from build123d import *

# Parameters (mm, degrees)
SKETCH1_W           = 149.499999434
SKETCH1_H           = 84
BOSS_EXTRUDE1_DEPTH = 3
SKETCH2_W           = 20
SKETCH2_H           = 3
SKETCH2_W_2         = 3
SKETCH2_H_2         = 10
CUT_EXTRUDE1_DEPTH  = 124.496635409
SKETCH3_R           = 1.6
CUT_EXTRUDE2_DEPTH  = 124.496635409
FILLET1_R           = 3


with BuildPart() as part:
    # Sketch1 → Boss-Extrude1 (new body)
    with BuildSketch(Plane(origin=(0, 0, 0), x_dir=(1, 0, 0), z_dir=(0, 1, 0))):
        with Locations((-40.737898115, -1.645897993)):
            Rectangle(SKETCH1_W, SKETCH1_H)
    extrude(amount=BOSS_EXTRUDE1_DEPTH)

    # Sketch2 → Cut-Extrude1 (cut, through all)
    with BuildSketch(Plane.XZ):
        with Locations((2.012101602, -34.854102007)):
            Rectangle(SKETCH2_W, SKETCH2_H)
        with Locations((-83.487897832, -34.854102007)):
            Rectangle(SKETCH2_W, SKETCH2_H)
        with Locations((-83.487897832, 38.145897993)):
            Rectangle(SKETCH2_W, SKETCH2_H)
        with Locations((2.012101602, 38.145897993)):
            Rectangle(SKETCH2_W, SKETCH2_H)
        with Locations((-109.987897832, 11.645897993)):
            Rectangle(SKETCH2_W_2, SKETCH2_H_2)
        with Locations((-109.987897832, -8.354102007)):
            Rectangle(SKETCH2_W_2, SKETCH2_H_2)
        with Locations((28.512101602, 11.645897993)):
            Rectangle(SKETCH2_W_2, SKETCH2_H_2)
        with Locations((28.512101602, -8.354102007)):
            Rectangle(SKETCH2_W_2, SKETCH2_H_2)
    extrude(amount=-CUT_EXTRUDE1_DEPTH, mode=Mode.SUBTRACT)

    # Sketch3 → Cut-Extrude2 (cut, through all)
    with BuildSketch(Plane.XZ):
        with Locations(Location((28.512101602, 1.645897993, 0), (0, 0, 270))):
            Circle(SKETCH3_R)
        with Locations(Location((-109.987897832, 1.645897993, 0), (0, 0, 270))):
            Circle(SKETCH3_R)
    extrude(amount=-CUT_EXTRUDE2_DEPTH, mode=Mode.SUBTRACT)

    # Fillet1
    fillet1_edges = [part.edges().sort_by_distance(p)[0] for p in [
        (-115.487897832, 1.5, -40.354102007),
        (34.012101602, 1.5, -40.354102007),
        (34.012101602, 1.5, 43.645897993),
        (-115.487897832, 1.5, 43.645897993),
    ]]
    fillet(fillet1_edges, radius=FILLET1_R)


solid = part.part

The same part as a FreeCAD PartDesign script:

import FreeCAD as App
import Part
import Sketcher
from FreeCAD import Vector


def edges_at(feature, points):
    """Names of the edges that pass closest to the given points."""
    edges = feature.Shape.Edges
    near = lambda p: min(range(len(edges)), key=lambda i: edges[i].distToShape(Part.Vertex(*p))[0])
    return sorted({f"Edge{near(p) + 1}" for p in points})


def add_polygon(sketch, points):
    """Adds a closed chain of lines whose ends are joined by coincident constraints."""
    first, n = sketch.GeometryCount, len(points)
    for a, b in zip(points, points[1:] + points[:1]):
        sketch.addGeometry(Part.LineSegment(App.Vector(*a, 0), App.Vector(*b, 0)), False)
    for i in range(n):
        sketch.addConstraint(Sketcher.Constraint("Coincident", first + i, 2, first + (i + 1) % n, 1))

doc = App.newDocument("Part")
body = doc.addObject("PartDesign::Body", "Body")

sketch1 = doc.addObject("Sketcher::SketchObject", "Sketch")
body.addObject(sketch1)
sketch1.AttachmentSupport = (doc.XZ_Plane, [""])
sketch1.MapMode = "FlatFace"
add_polygon(sketch1, [(-115, -40), (-115, 44), (34, 44), (34, -40)])
sketch1.addConstraint([
    Sketcher.Constraint("Vertical", 0),
    Sketcher.Constraint("Horizontal", 1),
    Sketcher.Constraint("Vertical", 2),
    Sketcher.Constraint("Horizontal", 3),
    Sketcher.Constraint("DistanceY", 0, 1, 0, 2, 84.0),
    Sketcher.Constraint("DistanceX", 1, 1, 1, 2, 149.499999),
    Sketcher.Constraint("DistanceX", -1, 1, 1, 2, 34.012102),
    Sketcher.Constraint("DistanceY", -1, 1, 0, 2, 43.645898),
])
pad1 = doc.addObject("PartDesign::Pad", "Pad")
body.addObject(pad1)
pad1.Profile = sketch1
pad1.Length = 3
pad1.Reversed = True

sketch2 = doc.addObject("Sketcher::SketchObject", "Sketch001")
body.addObject(sketch2)
sketch2.AttachmentSupport = (doc.XZ_Plane, [""])
sketch2.MapMode = "FlatFace"
add_polygon(sketch2, [(-8, -33.4), (-8, -36.4), (12, -36.4), (12, -33.4)])
add_polygon(sketch2, [(-93.5, -33.4), (-93.5, -36.4), (-73.5, -36.4), (-73.5, -33.4)])
add_polygon(sketch2, [(-93.5, 39.6), (-93.5, 36.6), (-73.5, 36.6), (-73.5, 39.6)])
add_polygon(sketch2, [(-8, 39.6), (-8, 36.6), (12, 36.6), (12, 39.6)])
add_polygon(sketch2, [(-111.5, 16.6), (-111.5, 6.6), (-108.5, 6.6), (-108.5, 16.6)])
add_polygon(sketch2, [(-111.5, -3.4), (-111.5, -13.4), (-108.5, -13.4), (-108.5, -3.4)])
add_polygon(sketch2, [(27, 16.6), (27, 6.6), (30, 6.6), (30, 16.6)])
add_polygon(sketch2, [(27, -3.4), (27, -13.4), (30, -13.4), (30, -3.4)])
sketch2.addConstraint([
    Sketcher.Constraint("Vertical", 0),
    Sketcher.Constraint("Horizontal", 1),
    Sketcher.Constraint("Vertical", 2),
    Sketcher.Constraint("Horizontal", 3),
    Sketcher.Constraint("Vertical", 4),
    Sketcher.Constraint("Horizontal", 5),
    Sketcher.Constraint("Vertical", 6),
    Sketcher.Constraint("Horizontal", 7),
    Sketcher.Constraint("Vertical", 8),
    Sketcher.Constraint("Horizontal", 9),
    Sketcher.Constraint("Vertical", 10),
    Sketcher.Constraint("Horizontal", 11),
    Sketcher.Constraint("Vertical", 12),
    Sketcher.Constraint("Horizontal", 13),
    Sketcher.Constraint("Vertical", 14),
    Sketcher.Constraint("Horizontal", 15),
    Sketcher.Constraint("Vertical", 16),
    Sketcher.Constraint("Horizontal", 17),
    Sketcher.Constraint("Vertical", 18),
    Sketcher.Constraint("Horizontal", 19),
    Sketcher.Constraint("Vertical", 20),
    Sketcher.Constraint("Horizontal", 21),
    Sketcher.Constraint("Vertical", 22),
    Sketcher.Constraint("Horizontal", 23),
    Sketcher.Constraint("Vertical", 24),
    Sketcher.Constraint("Horizontal", 25),
    Sketcher.Constraint("Vertical", 26),
    Sketcher.Constraint("Horizontal", 27),
    Sketcher.Constraint("Vertical", 28),
    Sketcher.Constraint("Horizontal", 29),
    Sketcher.Constraint("Vertical", 30),
    Sketcher.Constraint("Horizontal", 31),
    Sketcher.Constraint("Horizontal", 1, 2, 4, 2),
    Sketcher.Constraint("Horizontal", 3, 2, 6, 2),
    Sketcher.Constraint("Horizontal", 9, 2, 12, 2),
    Sketcher.Constraint("Horizontal", 11, 2, 14, 2),
    Sketcher.Constraint("Horizontal", 17, 2, 24, 2),
    Sketcher.Constraint("Horizontal", 19, 2, 26, 2),
    Sketcher.Constraint("Horizontal", 21, 2, 28, 2),
    Sketcher.Constraint("Horizontal", 23, 2, 30, 2),
    Sketcher.Constraint("Vertical", 7, 2, 8, 2),
    Sketcher.Constraint("Vertical", 6, 2, 9, 2),
    Sketcher.Constraint("Vertical", 3, 2, 12, 2),
    Sketcher.Constraint("Vertical", 2, 2, 13, 2),
    Sketcher.Constraint("Vertical", 19, 2, 20, 2),
    Sketcher.Constraint("Vertical", 18, 2, 21, 2),
    Sketcher.Constraint("Vertical", 27, 2, 28, 2),
    Sketcher.Constraint("Vertical", 26, 2, 29, 2),
    Sketcher.Constraint("Equal", 3, 5),
    Sketcher.Constraint("Equal", 23, 25),
    Sketcher.Constraint("Equal", 31, 0),
    Sketcher.Constraint("Equal", 6, 8),
    Sketcher.Constraint("Equal", 18, 20),
    Sketcher.Constraint("DistanceX", 1, 1, 1, 2, 20.0),
    Sketcher.Constraint("DistanceX", 17, 1, 17, 2, 3.0),
    Sketcher.Constraint("DistanceY", 16, 2, 16, 1, 10.0),
    Sketcher.Constraint("DistanceY", 7, 2, 8, 2, 70.0),
    Sketcher.Constraint("DistanceX", 16, 2, 8, 2, 18.0),
    Sketcher.Constraint("DistanceY", 16, 2, 8, 2, 30.0),
    Sketcher.Constraint("DistanceY", 20, 2, 16, 2, 20.0),
    Sketcher.Constraint("DistanceX", 13, 2, 24, 2, 15.0),
    Sketcher.Constraint("DistanceX", 4, 2, 0, 2, 85.499999),
    Sketcher.Constraint("DistanceX", 0, 2, -1, 1, 7.987898),
    Sketcher.Constraint("DistanceY", 0, 2, -1, 1, 36.354102),
])
pocket1 = doc.addObject("PartDesign::Pocket", "Pocket")
body.addObject(pocket1)
pocket1.Profile = sketch2
pocket1.Type = "ThroughAll"

sketch3 = doc.addObject("Sketcher::SketchObject", "Sketch002")
body.addObject(sketch3)
sketch3.AttachmentSupport = (doc.XZ_Plane, [""])
sketch3.MapMode = "FlatFace"
sketch3.addGeometry([
    Part.Circle(Vector(28.5, 1.6, 0), Vector(0, 0, 1), 1.6),
    Part.Circle(Vector(-110, 1.6, 0), Vector(0, 0, 1), 1.6),
], False)
sketch3.addConstraint([
    Sketcher.Constraint("Equal", 0, 1),
    Sketcher.Constraint("Horizontal", 0, 3, 1, 3),
    Sketcher.Constraint("Diameter", 0, 3.2),
    Sketcher.Constraint("DistanceX", 1, 3, 0, 3, 138.499999),
    Sketcher.Constraint("DistanceX", -1, 1, 0, 3, 28.512102),
    Sketcher.Constraint("DistanceY", -1, 1, 0, 3, 1.645898),
])
pocket2 = doc.addObject("PartDesign::Pocket", "Pocket001")
body.addObject(pocket2)
pocket2.Profile = sketch3
pocket2.Type = "ThroughAll"
doc.recompute()

fillet = doc.addObject("PartDesign::Fillet", "Fillet")
body.addObject(fillet)
fillet.Base = (pocket2, edges_at(pocket2, [
    (-115.488, 1.5, -40.354),
    (34.012, 1.5, -40.354),
    (34.012, 1.5, 43.646),
    (-115.488, 1.5, 43.646),
]))
fillet.Radius = 3

doc.recompute()
